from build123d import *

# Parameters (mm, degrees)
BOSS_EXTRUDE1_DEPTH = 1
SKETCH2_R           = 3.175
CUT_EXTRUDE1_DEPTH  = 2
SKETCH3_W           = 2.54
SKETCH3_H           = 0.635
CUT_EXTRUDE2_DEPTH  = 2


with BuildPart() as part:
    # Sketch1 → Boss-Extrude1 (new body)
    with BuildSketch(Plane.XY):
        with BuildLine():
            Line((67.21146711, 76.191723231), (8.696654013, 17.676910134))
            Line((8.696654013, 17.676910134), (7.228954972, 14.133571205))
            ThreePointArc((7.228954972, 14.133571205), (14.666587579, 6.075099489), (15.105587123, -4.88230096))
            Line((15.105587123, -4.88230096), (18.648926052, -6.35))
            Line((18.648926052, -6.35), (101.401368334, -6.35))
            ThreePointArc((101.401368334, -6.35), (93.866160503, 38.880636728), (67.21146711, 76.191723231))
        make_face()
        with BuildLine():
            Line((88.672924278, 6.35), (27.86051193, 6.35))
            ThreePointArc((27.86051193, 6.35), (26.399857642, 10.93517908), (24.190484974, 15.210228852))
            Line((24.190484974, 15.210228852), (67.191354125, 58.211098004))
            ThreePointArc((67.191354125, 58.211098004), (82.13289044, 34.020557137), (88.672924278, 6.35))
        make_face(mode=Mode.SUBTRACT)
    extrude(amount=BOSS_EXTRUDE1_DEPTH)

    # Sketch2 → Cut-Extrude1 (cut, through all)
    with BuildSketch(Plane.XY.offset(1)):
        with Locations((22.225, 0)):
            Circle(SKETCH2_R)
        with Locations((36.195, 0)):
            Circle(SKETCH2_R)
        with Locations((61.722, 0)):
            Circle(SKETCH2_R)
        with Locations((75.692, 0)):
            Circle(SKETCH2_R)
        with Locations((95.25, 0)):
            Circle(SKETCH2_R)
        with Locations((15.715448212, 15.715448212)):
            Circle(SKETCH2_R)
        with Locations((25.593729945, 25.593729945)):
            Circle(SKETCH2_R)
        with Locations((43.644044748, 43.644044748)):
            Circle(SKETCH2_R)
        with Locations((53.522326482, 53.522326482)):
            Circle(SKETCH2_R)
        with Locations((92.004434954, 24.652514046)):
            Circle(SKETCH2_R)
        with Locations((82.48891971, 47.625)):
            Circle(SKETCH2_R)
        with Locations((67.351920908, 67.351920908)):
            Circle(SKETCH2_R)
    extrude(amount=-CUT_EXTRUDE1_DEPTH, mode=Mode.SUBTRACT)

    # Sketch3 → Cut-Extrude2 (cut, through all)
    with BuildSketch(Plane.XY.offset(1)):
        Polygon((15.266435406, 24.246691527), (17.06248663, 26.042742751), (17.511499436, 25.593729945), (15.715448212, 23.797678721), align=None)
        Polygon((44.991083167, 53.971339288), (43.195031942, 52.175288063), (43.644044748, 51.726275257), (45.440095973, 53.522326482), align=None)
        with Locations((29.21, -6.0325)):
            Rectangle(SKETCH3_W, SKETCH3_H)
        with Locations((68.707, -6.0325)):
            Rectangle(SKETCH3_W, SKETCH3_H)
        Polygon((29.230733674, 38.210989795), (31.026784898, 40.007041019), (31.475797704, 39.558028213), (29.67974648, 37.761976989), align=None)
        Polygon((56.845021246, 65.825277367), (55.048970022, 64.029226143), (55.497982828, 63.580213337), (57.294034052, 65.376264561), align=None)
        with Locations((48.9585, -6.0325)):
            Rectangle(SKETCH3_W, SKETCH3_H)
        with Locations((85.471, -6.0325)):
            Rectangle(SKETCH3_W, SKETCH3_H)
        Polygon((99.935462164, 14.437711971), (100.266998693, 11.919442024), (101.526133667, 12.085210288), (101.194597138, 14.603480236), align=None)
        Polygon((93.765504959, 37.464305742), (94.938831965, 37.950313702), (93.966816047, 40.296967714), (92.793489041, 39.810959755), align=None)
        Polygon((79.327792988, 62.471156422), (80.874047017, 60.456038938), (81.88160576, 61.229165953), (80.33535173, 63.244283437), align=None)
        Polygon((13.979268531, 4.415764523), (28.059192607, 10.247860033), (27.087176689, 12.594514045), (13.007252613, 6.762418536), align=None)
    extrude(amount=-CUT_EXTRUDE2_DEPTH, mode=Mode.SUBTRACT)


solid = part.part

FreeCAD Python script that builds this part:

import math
import FreeCAD as App
import Part
import Sketcher

V = App.Vector
Q = App.Units.Quantity


def add_polygon(sketch, points):
    """Adds a closed chain of lines whose ends are joined by coincident constraints."""
    first, n = sketch.GeometryCount, len(points)
    for a, b in zip(points, points[1:] + points[:1]):
        sketch.addGeometry(Part.LineSegment(App.Vector(*a, 0), App.Vector(*b, 0)), False)
    for i in range(n):
        sketch.addConstraint(Sketcher.Constraint("Coincident", first + i, 2, first + (i + 1) % n, 1))

doc = App.newDocument("Part")
body = doc.addObject("PartDesign::Body", "Body")

sketch1 = body.newObject("Sketcher::SketchObject", "Sketch")
sketch1.AttachmentSupport = (doc.getObject("XY_Plane"), [""])
sketch1.MapMode = "FlatFace"
sketch1.addGeometry([
    Part.LineSegment(V(67.211467, 76.191723, 0), V(8.696654, 17.67691, 0)),
    Part.LineSegment(V(8.696654, 17.67691, 0), V(7.228955, 14.133571, 0)),
    Part.ArcOfCircle(Part.Circle(V(0, 0, 0), V(0, 0, 1), 15.875), math.radians(-17.911434), math.radians(62.911434)),
    Part.LineSegment(V(15.105587, -4.882301, 0), V(18.648926, -6.35, 0)),
    Part.LineSegment(V(18.648926, -6.35, 0), V(101.401368, -6.35, 0)),
    Part.ArcOfCircle(Part.Circle(V(0, 0, 0), V(0, 0, 1), 101.6), math.radians(-3.583322), math.radians(48.583322)),
    Part.ArcOfCircle(Part.Circle(V(0, 0, 0), V(0, 0, 1), 88.9), math.radians(4.096044), math.radians(40.903956)),
    Part.LineSegment(V(88.672924, 6.35, 0), V(27.860512, 6.35, 0)),
    Part.ArcOfCircle(Part.Circle(V(0, 0, 0), V(0, 0, 1), 28.575), math.radians(12.839588), math.radians(32.160412)),
    Part.LineSegment(V(24.190485, 15.210229, 0), V(67.191354, 58.211098, 0)),
], False)
sketch1.addConstraint([
    Sketcher.Constraint("Coincident", 0, 2, 1, 1),
    Sketcher.Constraint("Coincident", 1, 2, 2, 2),
    Sketcher.Constraint("Coincident", 2, 1, 3, 1),
    Sketcher.Constraint("Coincident", 3, 2, 4, 1),
    Sketcher.Constraint("Coincident", 4, 2, 5, 1),
    Sketcher.Constraint("Coincident", 5, 2, 0, 1),
    Sketcher.Constraint("Coincident", 6, 1, 7, 1),
    Sketcher.Constraint("Coincident", 7, 2, 8, 1),
    Sketcher.Constraint("Coincident", 8, 2, 9, 1),
    Sketcher.Constraint("Coincident", 9, 2, 6, 2),
    Sketcher.Constraint("Horizontal", 4),
    Sketcher.Constraint("Horizontal", 7),
    Sketcher.Constraint("Coincident", 2, 3, -1, 1),
    Sketcher.Constraint("Coincident", 5, 3, -1, 1),
    Sketcher.Constraint("Coincident", 6, 3, -1, 1),
    Sketcher.Constraint("Coincident", 8, 3, -1, 1),
    Sketcher.Constraint("Perpendicular", 1, 3),
    Sketcher.Constraint("Parallel", 0, 9),
    Sketcher.Constraint("Equal", 1, 3),
    Sketcher.Constraint("Radius", 5, Q("4 in")),
    Sketcher.Constraint("Radius", 6, Q("3.5 in")),
    Sketcher.Constraint("Angle", 0, Q("-135 deg")),
    Sketcher.Constraint("Radius", 2, Q("0.625 in")),
    Sketcher.Constraint("Radius", 8, Q("1.125 in")),
    Sketcher.Constraint("Angle", 1, Q("-112.5 deg")),
    Sketcher.Constraint("DistanceY", 4, 2, 6, 1, Q("0.5 in")),
    Sketcher.Constraint("DistanceY", 3, 2, -1, 1, Q("0.25 in")),
    Sketcher.Constraint("DistanceY", 2, 1, -1, 1, 4.882301),
    Sketcher.Constraint("DistanceY", -1, 1, 9, 2, 58.211098),
    Sketcher.Constraint("DistanceX", 5, 2, 4, 2, 34.189901),
])
pad1 = body.newObject("PartDesign::Pad", "Pad")
pad1.Profile = sketch1
pad1.Length = 1

sketch2 = body.newObject("Sketcher::SketchObject", "Sketch001")
sketch2.AttachmentSupport = (doc.getObject("XY_Plane"), [""])
sketch2.MapMode = "FlatFace"
sketch2.AttachmentOffset = App.Placement(V(0, 0, 1), App.Rotation())
sketch2.addGeometry([
    Part.Circle(V(22.225, 0, 0), V(0, 0, 1), 3.175),
    Part.Circle(V(36.195, 0, 0), V(0, 0, 1), 3.175),
    Part.Circle(V(61.722, 0, 0), V(0, 0, 1), 3.175),
    Part.Circle(V(75.692, 0, 0), V(0, 0, 1), 3.175),
    Part.Circle(V(95.25, 0, 0), V(0, 0, 1), 3.175),
    Part.Circle(V(15.715448, 15.715448, 0), V(0, 0, 1), 3.175),
    Part.Circle(V(25.59373, 25.59373, 0), V(0, 0, 1), 3.175),
    Part.Circle(V(43.644045, 43.644045, 0), V(0, 0, 1), 3.175),
    Part.Circle(V(53.522326, 53.522326, 0), V(0, 0, 1), 3.175),
    Part.Circle(V(92.004435, 24.652514, 0), V(0, 0, 1), 3.175),
    Part.Circle(V(82.48892, 47.625, 0), V(0, 0, 1), 3.175),
    Part.Circle(V(67.351921, 67.351921, 0), V(0, 0, 1), 3.175),
], False)
sketch2.addConstraint([
    Sketcher.Constraint("Equal", 0, 1),
    Sketcher.Constraint("Equal", 1, 2),
    Sketcher.Constraint("Equal", 2, 3),
    Sketcher.Constraint("Equal", 3, 4),
    Sketcher.Constraint("Equal", 4, 5),
    Sketcher.Constraint("Equal", 5, 6),
    Sketcher.Constraint("Equal", 6, 7),
    Sketcher.Constraint("Equal", 7, 8),
    Sketcher.Constraint("Equal", 8, 9),
    Sketcher.Constraint("Equal", 9, 10),
    Sketcher.Constraint("Equal", 10, 11),
    Sketcher.Constraint("PointOnObject", 0, 3, -1),
    Sketcher.Constraint("PointOnObject", 1, 3, -1),
    Sketcher.Constraint("PointOnObject", 2, 3, -1),
    Sketcher.Constraint("PointOnObject", 3, 3, -1),
    Sketcher.Constraint("PointOnObject", 4, 3, -1),
    Sketcher.Constraint("Diameter", 0, Q("0.25 in")),
    Sketcher.Constraint("DistanceX", -1, 1, 2, 3, Q("2.43 in")),
    Sketcher.Constraint("DistanceX", -1, 1, 3, 3, Q("2.98 in")),
    Sketcher.Constraint("DistanceX", -1, 1, 4, 3, Q("3.75 in")),
    Sketcher.Constraint("DistanceX", 0, 3, 1, 3, Q("0.55 in")),
    Sketcher.Constraint("DistanceX", -1, 1, 0, 3, Q("0.875 in")),
    Sketcher.Constraint("DistanceY", -1, 1, 10, 3, Q("1.875 in")),
    Sketcher.Constraint("DistanceX", 11, 3, 10, 3, 15.136999),
    Sketcher.Constraint("DistanceX", -1, 1, 5, 3, 15.715448),
    Sketcher.Constraint("DistanceY", -1, 1, 5, 3, 15.715448),
    Sketcher.Constraint("DistanceX", -1, 1, 6, 3, 25.59373),
    Sketcher.Constraint("DistanceY", -1, 1, 6, 3, 25.59373),
    Sketcher.Constraint("DistanceX", -1, 1, 10, 3, 82.48892),
    Sketcher.Constraint("DistanceY", -1, 1, 11, 3, 67.351921),
    Sketcher.Constraint("DistanceX", 7, 3, 8, 3, 9.878282),
    Sketcher.Constraint("DistanceY", 7, 3, 8, 3, 9.878282),
    Sketcher.Constraint("DistanceX", 5, 3, 8, 3, 37.806878),
    Sketcher.Constraint("DistanceY", 5, 3, 8, 3, 37.806878),
    Sketcher.Constraint("DistanceX", 8, 3, 9, 3, 38.482108),
    Sketcher.Constraint("DistanceY", 9, 3, 7, 3, 18.991531),
])
pocket1 = body.newObject("PartDesign::Pocket", "Pocket")
pocket1.Profile = sketch2
pocket1.Type = "ThroughAll"

sketch3 = body.newObject("Sketcher::SketchObject", "Sketch002")
sketch3.AttachmentSupport = (doc.getObject("XY_Plane"), [""])
sketch3.MapMode = "FlatFace"
sketch3.AttachmentOffset = App.Placement(V(0, 0, 1), App.Rotation())
add_polygon(sketch3, [(17.062487, 26.042743), (15.266435, 24.246692), (15.715448, 23.797679), (17.511499, 25.59373)])
add_polygon(sketch3, [(44.991083, 53.971339), (43.195032, 52.175288), (43.644045, 51.726275), (45.440096, 53.522326)])
add_polygon(sketch3, [(27.94, -5.715), (27.94, -6.35), (30.48, -6.35), (30.48, -5.715)])
add_polygon(sketch3, [(67.437, -5.715), (67.437, -6.35), (69.977, -6.35), (69.977, -5.715)])
add_polygon(sketch3, [(31.026785, 40.007041), (29.230734, 38.21099), (29.679746, 37.761977), (31.475798, 39.558028)])
add_polygon(sketch3, [(56.845021, 65.825277), (55.04897, 64.029226), (55.497983, 63.580213), (57.294034, 65.376265)])
add_polygon(sketch3, [(47.6885, -5.715), (47.6885, -6.35), (50.2285, -6.35), (50.2285, -5.715)])
add_polygon(sketch3, [(84.201, -5.715), (84.201, -6.35), (86.741, -6.35), (86.741, -5.715)])
add_polygon(sketch3, [(99.935462, 14.437712), (100.266999, 11.919442), (101.526134, 12.08521), (101.194597, 14.60348)])
add_polygon(sketch3, [(93.765505, 37.464306), (94.938832, 37.950314), (93.966816, 40.296968), (92.793489, 39.81096)])
add_polygon(sketch3, [(79.327793, 62.471156), (80.874047, 60.456039), (81.881606, 61.229166), (80.335352, 63.244283)])
add_polygon(sketch3, [(13.979269, 4.415765), (28.059193, 10.24786), (27.087177, 12.594514), (13.007253, 6.762419)])
sketch3.addConstraint([
    Sketcher.Constraint("Vertical", 8),
    Sketcher.Constraint("Horizontal", 9),
    Sketcher.Constraint("Vertical", 10),
    Sketcher.Constraint("Horizontal", 11),
    Sketcher.Constraint("Vertical", 12),
    Sketcher.Constraint("Horizontal", 13),
    Sketcher.Constraint("Vertical", 14),
    Sketcher.Constraint("Horizontal", 15),
    Sketcher.Constraint("Vertical", 24),
    Sketcher.Constraint("Horizontal", 25),
    Sketcher.Constraint("Vertical", 26),
    Sketcher.Constraint("Horizontal", 27),
    Sketcher.Constraint("Vertical", 28),
    Sketcher.Constraint("Horizontal", 29),
    Sketcher.Constraint("Vertical", 30),
    Sketcher.Constraint("Horizontal", 31),
    Sketcher.Constraint("Perpendicular", 0, 1),
    Sketcher.Constraint("Perpendicular", 1, 2),
    Sketcher.Constraint("Perpendicular", 2, 3),
    Sketcher.Constraint("Perpendicular", 3, 4),
    Sketcher.Constraint("Perpendicular", 4, 5),
    Sketcher.Constraint("Perpendicular", 5, 6),
    Sketcher.Constraint("Perpendicular", 6, 7),
    Sketcher.Constraint("Perpendicular", 7, 16),
    Sketcher.Constraint("Perpendicular", 16, 17),
    Sketcher.Constraint("Perpendicular", 17, 18),
    Sketcher.Constraint("Perpendicular", 18, 19),
    Sketcher.Constraint("Perpendicular", 19, 20),
    Sketcher.Constraint("Perpendicular", 20, 21),
    Sketcher.Constraint("Perpendicular", 21, 22),
    Sketcher.Constraint("Perpendicular", 22, 23),
    Sketcher.Constraint("Perpendicular", 32, 33),
    Sketcher.Constraint("Perpendicular", 33, 34),
    Sketcher.Constraint("Perpendicular", 34, 35),
    Sketcher.Constraint("Perpendicular", 36, 37),
    Sketcher.Constraint("Perpendicular", 37, 38),
    Sketcher.Constraint("Perpendicular", 38, 39),
    Sketcher.Constraint("Perpendicular", 40, 41),
    Sketcher.Constraint("Perpendicular", 41, 42),
    Sketcher.Constraint("Perpendicular", 42, 43),
    Sketcher.Constraint("Perpendicular", 39, 44),
    Sketcher.Constraint("Perpendicular", 44, 45),
    Sketcher.Constraint("Perpendicular", 45, 46),
    Sketcher.Constraint("Perpendicular", 46, 47),
    Sketcher.Constraint("Horizontal", 9, 2, 12, 2),
    Sketcher.Constraint("Horizontal", 11, 2, 14, 2),
    Sketcher.Constraint("Horizontal", 13, 2, 24, 2),
    Sketcher.Constraint("Horizontal", 15, 2, 26, 2),
    Sketcher.Constraint("Horizontal", 25, 2, 28, 2),
    Sketcher.Constraint("Horizontal", 27, 2, 30, 2),
    Sketcher.Constraint("Equal", 11, 13),
    Sketcher.Constraint("Equal", 15, 25),
    Sketcher.Constraint("Equal", 27, 29),
    Sketcher.Constraint("Equal", 2, 4),
    Sketcher.Constraint("Equal", 3, 5),
    Sketcher.Constraint("Equal", 6, 16),
    Sketcher.Constraint("Equal", 7, 17),
    Sketcher.Constraint("Equal", 18, 20),
    Sketcher.Constraint("Equal", 19, 21),
    Sketcher.Constraint("Equal", 22, 32),
    Sketcher.Constraint("Equal", 35, 36),
    Sketcher.Constraint("Equal", 34, 37),
    Sketcher.Constraint("Equal", 39, 40),
    Sketcher.Constraint("Equal", 38, 41),
    Sketcher.Constraint("Equal", 42, 45),
    Sketcher.Constraint("DistanceX", 9, 1, 9, 2, Q("0.1 in")),
    Sketcher.Constraint("Angle", 0, Q("-135 deg")),
    Sketcher.Constraint("Distance", 0, Q("0.1 in")),
    Sketcher.Constraint("Distance", 44, Q("0.6 in")),
    Sketcher.Constraint("DistanceX", -1, 1, 8, 2, Q("1.1 in")),
    Sketcher.Constraint("Angle", 32, Q("-82.5 deg")),
    Sketcher.Constraint("Angle", 36, Q("22.5 deg")),
    Sketcher.Constraint("Angle", 40, Q("-52.5 deg")),
    Sketcher.Constraint("Distance", 33, Q("0.05 in")),
    Sketcher.Constraint("DistanceY", 8, 2, 8, 1, Q("0.025 in")),
    Sketcher.Constraint("DistanceY", 8, 2, -1, 1, Q("0.25 in")),
    Sketcher.Constraint("DistanceX", 13, 2, 28, 2, Q("0.56 in")),
    Sketcher.Constraint("Distance", 1, Q("0.025 in")),
    Sketcher.Constraint("DistanceX", -1, 1, 12, 2, Q("2.655 in")),
    Sketcher.Constraint("DistanceX", -1, 1, 24, 2, Q("1.8775 in")),
    Sketcher.Constraint("DistanceX", -1, 1, 2, 2, 17.511499),
    Sketcher.Constraint("DistanceX", -1, 1, 32, 2, 100.266999),
    Sketcher.Constraint("DistanceX", 16, 2, 4, 2, 13.964298),
    Sketcher.Constraint("DistanceY", 16, 2, 4, 2, 13.964298),
    Sketcher.Constraint("DistanceX", 0, 2, 16, 2, 13.964298),
    Sketcher.Constraint("DistanceY", 0, 2, 16, 2, 13.964298),
    Sketcher.Constraint("DistanceY", 6, 2, 20, 2, 10.5069),
    Sketcher.Constraint("DistanceX", 7, 2, 21, 2, 10.5069),
    Sketcher.Constraint("DistanceY", 35, 2, 36, 2, 23.512602),
    Sketcher.Constraint("DistanceX", 36, 2, 33, 2, 6.587302),
    Sketcher.Constraint("DistanceY", 37, 2, 41, 2, 20.932198),
    Sketcher.Constraint("DistanceY", 41, 2, 22, 2, 4.147099),
    Sketcher.Constraint("DistanceY", -1, 1, 0, 2, 24.246692),
    Sketcher.Constraint("DistanceX", -1, 1, 42, 2, 80.335352),
    Sketcher.Constraint("DistanceY", -1, 1, 44, 2, 10.24786),
    Sketcher.Constraint("DistanceX", -1, 1, 47, 2, 13.979269),
])
pocket2 = body.newObject("PartDesign::Pocket", "Pocket001")
pocket2.Profile = sketch3
pocket2.Type = "ThroughAll"

doc.recompute()
